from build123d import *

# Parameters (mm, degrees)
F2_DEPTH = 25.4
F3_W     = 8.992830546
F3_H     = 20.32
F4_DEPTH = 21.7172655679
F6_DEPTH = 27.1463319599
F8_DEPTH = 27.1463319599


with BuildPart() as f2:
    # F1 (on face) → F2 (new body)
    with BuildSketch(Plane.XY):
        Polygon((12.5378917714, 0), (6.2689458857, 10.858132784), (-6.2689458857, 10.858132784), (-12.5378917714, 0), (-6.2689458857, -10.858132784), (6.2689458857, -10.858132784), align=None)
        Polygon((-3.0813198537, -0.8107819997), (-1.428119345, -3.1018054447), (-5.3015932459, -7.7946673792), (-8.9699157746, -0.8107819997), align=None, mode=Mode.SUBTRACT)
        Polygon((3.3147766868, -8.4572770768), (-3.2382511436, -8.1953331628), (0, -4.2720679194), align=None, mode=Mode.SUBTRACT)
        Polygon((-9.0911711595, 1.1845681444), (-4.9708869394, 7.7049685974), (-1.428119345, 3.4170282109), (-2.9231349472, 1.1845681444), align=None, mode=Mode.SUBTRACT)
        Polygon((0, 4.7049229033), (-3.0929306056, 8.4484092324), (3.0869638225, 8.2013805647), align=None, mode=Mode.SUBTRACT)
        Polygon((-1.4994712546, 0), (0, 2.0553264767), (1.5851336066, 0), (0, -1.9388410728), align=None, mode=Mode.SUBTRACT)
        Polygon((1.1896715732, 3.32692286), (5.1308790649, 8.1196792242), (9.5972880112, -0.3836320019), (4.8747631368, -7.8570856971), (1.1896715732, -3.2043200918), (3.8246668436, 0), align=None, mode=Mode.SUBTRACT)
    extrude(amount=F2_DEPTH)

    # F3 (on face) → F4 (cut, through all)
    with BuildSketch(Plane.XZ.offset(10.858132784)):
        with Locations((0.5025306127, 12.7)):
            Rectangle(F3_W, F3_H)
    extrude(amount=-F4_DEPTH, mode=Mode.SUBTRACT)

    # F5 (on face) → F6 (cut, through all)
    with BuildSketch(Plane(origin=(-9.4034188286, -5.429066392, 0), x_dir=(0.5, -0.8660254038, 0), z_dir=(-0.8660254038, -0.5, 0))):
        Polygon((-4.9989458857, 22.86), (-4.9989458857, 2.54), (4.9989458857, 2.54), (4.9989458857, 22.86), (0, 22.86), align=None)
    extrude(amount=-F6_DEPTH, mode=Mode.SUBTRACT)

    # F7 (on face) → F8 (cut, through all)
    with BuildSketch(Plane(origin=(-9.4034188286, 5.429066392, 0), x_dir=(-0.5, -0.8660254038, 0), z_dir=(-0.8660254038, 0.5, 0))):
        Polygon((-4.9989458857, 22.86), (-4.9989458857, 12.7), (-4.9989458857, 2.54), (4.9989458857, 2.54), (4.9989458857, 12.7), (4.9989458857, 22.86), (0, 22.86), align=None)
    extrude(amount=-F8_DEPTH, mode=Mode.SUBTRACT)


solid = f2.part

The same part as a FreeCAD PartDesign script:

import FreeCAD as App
import Part
import Sketcher
from FreeCAD import Vector
Q = App.Units.Quantity

doc = App.newDocument("Part")
body = doc.addObject("PartDesign::Body", "Body")

sketch1 = body.newObject("Sketcher::SketchObject", "Sketch")
sketch1.AttachmentSupport = (doc.getObject("XY_Plane"), [""])
sketch1.MapMode = "FlatFace"
sketch1.addGeometry(Part.LineSegment(Vector(12.5, 0, 0), Vector(6.3, 10.9, 0)), False)
sketch1.addGeometry(Part.LineSegment(Vector(6.3, 10.9, 0), Vector(-6.3, 10.9, 0)), False)
sketch1.addGeometry(Part.LineSegment(Vector(-6.3, 10.9, 0), Vector(-12.5, 0, 0)), False)
sketch1.addGeometry(Part.LineSegment(Vector(-12.5, 0, 0), Vector(-6.3, -10.9, 0)), False)
sketch1.addGeometry(Part.LineSegment(Vector(-6.3, -10.9, 0), Vector(6.3, -10.9, 0)), False)
sketch1.addGeometry(Part.LineSegment(Vector(6.3, -10.9, 0), Vector(12.5, 0, 0)), False)
sketch1.addGeometry(Part.LineSegment(Vector(-9, -0.8, 0), Vector(-3.1, -0.8, 0)), False)
sketch1.addGeometry(Part.LineSegment(Vector(-3.1, -0.8, 0), Vector(-1.4, -3.1, 0)), False)
sketch1.addGeometry(Part.LineSegment(Vector(-1.4, -3.1, 0), Vector(-5.3, -7.8, 0)), False)
sketch1.addGeometry(Part.LineSegment(Vector(-5.3, -7.8, 0), Vector(-9, -0.8, 0)), False)
sketch1.addGeometry(Part.LineSegment(Vector(0, -4.3, 0), Vector(3.3, -8.5, 0)), False)
sketch1.addGeometry(Part.LineSegment(Vector(3.3, -8.5, 0), Vector(-3.2, -8.2, 0)), False)
sketch1.addGeometry(Part.LineSegment(Vector(-3.2, -8.2, 0), Vector(0, -4.3, 0)), False)
sketch1.addGeometry(Part.LineSegment(Vector(0, -1.9, 0), Vector(-1.5, 0, 0)), False)
sketch1.addGeometry(Part.LineSegment(Vector(-1.5, 0, 0), Vector(0, 2.1, 0)), False)
sketch1.addGeometry(Part.LineSegment(Vector(0, 2.1, 0), Vector(1.6, 0, 0)), False)
sketch1.addGeometry(Part.LineSegment(Vector(1.6, 0, 0), Vector(0, -1.9, 0)), False)
sketch1.addGeometry(Part.LineSegment(Vector(-2.9, 1.2, 0), Vector(-9.1, 1.2, 0)), False)
sketch1.addGeometry(Part.LineSegment(Vector(-9.1, 1.2, 0), Vector(-5, 7.7, 0)), False)
sketch1.addGeometry(Part.LineSegment(Vector(-5, 7.7, 0), Vector(-1.4, 3.4, 0)), False)
sketch1.addGeometry(Part.LineSegment(Vector(-1.4, 3.4, 0), Vector(-2.9, 1.2, 0)), False)
sketch1.addGeometry(Part.LineSegment(Vector(3.1, 8.2, 0), Vector(0, 4.7, 0)), False)
sketch1.addGeometry(Part.LineSegment(Vector(0, 4.7, 0), Vector(-3.1, 8.4, 0)), False)
sketch1.addGeometry(Part.LineSegment(Vector(-3.1, 8.4, 0), Vector(3.1, 8.2, 0)), False)
sketch1.addGeometry(Part.LineSegment(Vector(3.8, 0, 0), Vector(1.2, 3.3, 0)), False)
sketch1.addGeometry(Part.LineSegment(Vector(1.2, 3.3, 0), Vector(5.1, 8.1, 0)), False)
sketch1.addGeometry(Part.LineSegment(Vector(5.1, 8.1, 0), Vector(9.6, -0.4, 0)), False)
sketch1.addGeometry(Part.LineSegment(Vector(9.6, -0.4, 0), Vector(4.9, -7.9, 0)), False)
sketch1.addGeometry(Part.LineSegment(Vector(4.9, -7.9, 0), Vector(1.2, -3.2, 0)), False)
sketch1.addGeometry(Part.LineSegment(Vector(1.2, -3.2, 0), Vector(3.8, 0, 0)), False)
sketch1.addConstraint(Sketcher.Constraint("Coincident", 0, 2, 1, 1))
sketch1.addConstraint(Sketcher.Constraint("Coincident", 1, 2, 2, 1))
sketch1.addConstraint(Sketcher.Constraint("Coincident", 2, 2, 3, 1))
sketch1.addConstraint(Sketcher.Constraint("Coincident", 3, 2, 4, 1))
sketch1.addConstraint(Sketcher.Constraint("Coincident", 4, 2, 5, 1))
sketch1.addConstraint(Sketcher.Constraint("Coincident", 5, 2, 0, 1))
sketch1.addConstraint(Sketcher.Constraint("Coincident", 6, 2, 7, 1))
sketch1.addConstraint(Sketcher.Constraint("Coincident", 7, 2, 8, 1))
sketch1.addConstraint(Sketcher.Constraint("Coincident", 8, 2, 9, 1))
sketch1.addConstraint(Sketcher.Constraint("Coincident", 9, 2, 6, 1))
sketch1.addConstraint(Sketcher.Constraint("Coincident", 10, 2, 11, 1))
sketch1.addConstraint(Sketcher.Constraint("Coincident", 11, 2, 12, 1))
sketch1.addConstraint(Sketcher.Constraint("Coincident", 12, 2, 10, 1))
sketch1.addConstraint(Sketcher.Constraint("Coincident", 13, 2, 14, 1))
sketch1.addConstraint(Sketcher.Constraint("Coincident", 14, 2, 15, 1))
sketch1.addConstraint(Sketcher.Constraint("Coincident", 15, 2, 16, 1))
sketch1.addConstraint(Sketcher.Constraint("Coincident", 16, 2, 13, 1))
sketch1.addConstraint(Sketcher.Constraint("Coincident", 17, 2, 18, 1))
sketch1.addConstraint(Sketcher.Constraint("Coincident", 18, 2, 19, 1))
sketch1.addConstraint(Sketcher.Constraint("Coincident", 19, 2, 20, 1))
sketch1.addConstraint(Sketcher.Constraint("Coincident", 20, 2, 17, 1))
sketch1.addConstraint(Sketcher.Constraint("Coincident", 21, 2, 22, 1))
sketch1.addConstraint(Sketcher.Constraint("Coincident", 22, 2, 23, 1))
sketch1.addConstraint(Sketcher.Constraint("Coincident", 23, 2, 21, 1))
sketch1.addConstraint(Sketcher.Constraint("Coincident", 24, 2, 25, 1))
sketch1.addConstraint(Sketcher.Constraint("Coincident", 25, 2, 26, 1))
sketch1.addConstraint(Sketcher.Constraint("Coincident", 26, 2, 27, 1))
sketch1.addConstraint(Sketcher.Constraint("Coincident", 27, 2, 28, 1))
sketch1.addConstraint(Sketcher.Constraint("Coincident", 28, 2, 29, 1))
sketch1.addConstraint(Sketcher.Constraint("Coincident", 29, 2, 24, 1))
sketch1.addConstraint(Sketcher.Constraint("Horizontal", 1))
sketch1.addConstraint(Sketcher.Constraint("Horizontal", 4))
sketch1.addConstraint(Sketcher.Constraint("Horizontal", 6))
sketch1.addConstraint(Sketcher.Constraint("Horizontal", 17))
sketch1.addConstraint(Sketcher.Constraint("Symmetric", 0, 2, 3, 2, -1, 1))
sketch1.addConstraint(Sketcher.Constraint("Symmetric", 2, 2, 5, 2, -1, 1))
sketch1.addConstraint(Sketcher.Constraint("PointOnObject", 2, 2, -1))
sketch1.addConstraint(Sketcher.Constraint("PointOnObject", 12, 2, -2))
sketch1.addConstraint(Sketcher.Constraint("PointOnObject", 13, 2, -1))
sketch1.addConstraint(Sketcher.Constraint("PointOnObject", 14, 2, -2))
sketch1.addConstraint(Sketcher.Constraint("PointOnObject", 15, 2, -1))
sketch1.addConstraint(Sketcher.Constraint("PointOnObject", 16, 2, -2))
sketch1.addConstraint(Sketcher.Constraint("PointOnObject", 21, 2, -2))
sketch1.addConstraint(Sketcher.Constraint("PointOnObject", 29, 2, -1))
sketch1.addConstraint(Sketcher.Constraint("Parallel", 2, 5))
sketch1.addConstraint(Sketcher.Constraint("Parallel", 8, 12))
sketch1.addConstraint(Sketcher.Constraint("Parallel", 19, 22))
sketch1.addConstraint(Sketcher.Constraint("Parallel", 11, 23))
sketch1.addConstraint(Sketcher.Constraint("Parallel", 10, 24))
sketch1.addConstraint(Sketcher.Constraint("Parallel", 9, 26))
sketch1.addConstraint(Sketcher.Constraint("Parallel", 18, 27))
sketch1.addConstraint(Sketcher.Constraint("Parallel", 24, 28))
sketch1.addConstraint(Sketcher.Constraint("Parallel", 25, 29))
sketch1.addConstraint(Sketcher.Constraint("Vertical", 1, 2, 3, 2))
sketch1.addConstraint(Sketcher.Constraint("Vertical", 7, 2, 19, 2))
sketch1.addConstraint(Sketcher.Constraint("Vertical", 24, 2, 28, 2))
sketch1.addConstraint(Sketcher.Constraint("Angle", 0, Q("120 deg")))
sketch1.addConstraint(Sketcher.Constraint("Angle", 10, Q("-51.62001 deg")))
sketch1.addConstraint(Sketcher.Constraint("Distance", 29, 4.148598))
sketch1.addConstraint(Sketcher.Constraint("DistanceX", 1, 2, 1, 1, 12.537892))
sketch1.addConstraint(Sketcher.Constraint("DistanceX", 6, 2, 7, 2, 1.653201))
sketch1.addConstraint(Sketcher.Constraint("DistanceX", 2, 2, 8, 2, 7.236299))
sketch1.addConstraint(Sketcher.Constraint("DistanceY", 3, 2, 11, 2, 2.6628))
sketch1.addConstraint(Sketcher.Constraint("DistanceY", 8, 2, 12, 2, 3.522599))
sketch1.addConstraint(Sketcher.Constraint("DistanceX", 17, 2, 13, 2, 7.5917))
sketch1.addConstraint(Sketcher.Constraint("DistanceY", 17, 2, 18, 2, 6.5204))
sketch1.addConstraint(Sketcher.Constraint("DistanceY", 14, 2, 19, 2, 1.361702))
sketch1.addConstraint(Sketcher.Constraint("DistanceY", 24, 2, 21, 2, 1.378))
sketch1.addConstraint(Sketcher.Constraint("DistanceY", 25, 2, 23, 2, 0.081701))
sketch1.addConstraint(Sketcher.Constraint("Distance", 0, 12.537892))
sketch1.addConstraint(Sketcher.Constraint("Distance", 7, 2.825219))
sketch1.addConstraint(Sketcher.Constraint("Distance", 8, 6.084961))
sketch1.addConstraint(Sketcher.Constraint("Distance", 9, 7.888678))
sketch1.addConstraint(Sketcher.Constraint("Distance", 11, 6.558261))
sketch1.addConstraint(Sketcher.Constraint("Distance", 12, 5.08707))
sketch1.addConstraint(Sketcher.Constraint("Distance", 18, 7.713129))
sketch1.addConstraint(Sketcher.Constraint("Distance", 19, 5.562161))
sketch1.addConstraint(Sketcher.Constraint("Distance", 20, 2.68681))
sketch1.addConstraint(Sketcher.Constraint("Distance", 21, 4.664179))
sketch1.addConstraint(Sketcher.Constraint("Distance", 23, 6.18483))
sketch1.addConstraint(Sketcher.Constraint("Distance", 24, 4.244009))
sketch1.addConstraint(Sketcher.Constraint("Distance", 25, 6.205129))
sketch1.addConstraint(Sketcher.Constraint("Distance", 28, 5.935329))
sketch1.addConstraint(Sketcher.Constraint("DistanceX", 6, 1, 6, 2, 5.888596))
sketch1.addConstraint(Sketcher.Constraint("DistanceY", 16, 2, -1, 1, 1.938841))
sketch1.addConstraint(Sketcher.Constraint("DistanceY", -1, 1, 17, 2, 1.184568))
sketch1.addConstraint(Sketcher.Constraint("DistanceX", -1, 1, 24, 2, 1.189672))
sketch1.addConstraint(Sketcher.Constraint("Distance", 15, 2.595576))
pad1 = body.newObject("PartDesign::Pad", "Pad")
pad1.Profile = sketch1
pad1.Length = Q("1 in")

sketch2 = body.newObject("Sketcher::SketchObject", "Sketch001")
sketch2.AttachmentSupport = (doc.getObject("XZ_Plane"), [""])
sketch2.MapMode = "FlatFace"
sketch2.AttachmentOffset = App.Placement(Vector(0, 0, 10.858133), App.Rotation())
sketch2.addGeometry(Part.LineSegment(Vector(-4, 23, 0), Vector(-4, 3, 0)), False)
sketch2.addGeometry(Part.LineSegment(Vector(-4, 3, 0), Vector(5, 3, 0)), False)
sketch2.addGeometry(Part.LineSegment(Vector(5, 3, 0), Vector(5, 23, 0)), False)
sketch2.addGeometry(Part.LineSegment(Vector(5, 23, 0), Vector(-4, 23, 0)), False)
sketch2.addConstraint(Sketcher.Constraint("Coincident", 0, 2, 1, 1))
sketch2.addConstraint(Sketcher.Constraint("Coincident", 1, 2, 2, 1))
sketch2.addConstraint(Sketcher.Constraint("Coincident", 2, 2, 3, 1))
sketch2.addConstraint(Sketcher.Constraint("Coincident", 3, 2, 0, 1))
sketch2.addConstraint(Sketcher.Constraint("Vertical", 0))
sketch2.addConstraint(Sketcher.Constraint("Horizontal", 1))
sketch2.addConstraint(Sketcher.Constraint("Vertical", 2))
sketch2.addConstraint(Sketcher.Constraint("Horizontal", 3))
sketch2.addConstraint(Sketcher.Constraint("DistanceY", 0, 2, 0, 1, Q("0.8 in")))
sketch2.addConstraint(Sketcher.Constraint("DistanceY", -1, 1, 0, 2, Q("0.1 in")))
sketch2.addConstraint(Sketcher.Constraint("DistanceX", 1, 1, 1, 2, 8.992831))
sketch2.addConstraint(Sketcher.Constraint("DistanceX", 0, 2, -1, 1, 3.993885))
pocket1 = body.newObject("PartDesign::Pocket", "Pocket")
pocket1.Profile = sketch2
pocket1.Type = "ThroughAll"

sketch3 = body.newObject("Sketcher::SketchObject", "Sketch002")
sketch3.Placement = App.Placement(Vector(-9.403419, -5.429066, 0), App.Rotation(Vector(0.5, -0.866025404, 0), Vector(0, 0, 1), Vector(-0.866025404, -0.5, 0), "ZXY"))
sketch3.addGeometry(Part.LineSegment(Vector(-5, 23, 0), Vector(-5, 3, 0)), False)
sketch3.addGeometry(Part.LineSegment(Vector(-5, 3, 0), Vector(5, 3, 0)), False)
sketch3.addGeometry(Part.LineSegment(Vector(5, 3, 0), Vector(5, 23, 0)), False)
sketch3.addGeometry(Part.LineSegment(Vector(5, 23, 0), Vector(-5, 23, 0)), False)
sketch3.addConstraint(Sketcher.Constraint("Coincident", 0, 2, 1, 1))
sketch3.addConstraint(Sketcher.Constraint("Coincident", 1, 2, 2, 1))
sketch3.addConstraint(Sketcher.Constraint("Coincident", 2, 2, 3, 1))
sketch3.addConstraint(Sketcher.Constraint("Coincident", 3, 2, 0, 1))
sketch3.addConstraint(Sketcher.Constraint("Vertical", 0))
sketch3.addConstraint(Sketcher.Constraint("Horizontal", 1))
sketch3.addConstraint(Sketcher.Constraint("Vertical", 2))
sketch3.addConstraint(Sketcher.Constraint("Horizontal", 3))
sketch3.addConstraint(Sketcher.Constraint("DistanceY", 0, 2, 0, 1, Q("0.8 in")))
sketch3.addConstraint(Sketcher.Constraint("DistanceY", -1, 1, 0, 2, Q("0.1 in")))
sketch3.addConstraint(Sketcher.Constraint("DistanceX", 1, 1, 1, 2, 9.997892))
sketch3.addConstraint(Sketcher.Constraint("DistanceX", 0, 2, -1, 1, 4.998946))
pocket2 = body.newObject("PartDesign::Pocket", "Pocket001")
pocket2.Profile = sketch3
pocket2.Type = "ThroughAll"

sketch4 = body.newObject("Sketcher::SketchObject", "Sketch003")
sketch4.Placement = App.Placement(Vector(-9.403419, 5.429066, 0), App.Rotation(Vector(-0.5, -0.866025404, 0), Vector(0, 0, 1), Vector(-0.866025404, 0.5, 0), "ZXY"))
sketch4.addGeometry(Part.LineSegment(Vector(-5, 23, 0), Vector(-5, 3, 0)), False)
sketch4.addGeometry(Part.LineSegment(Vector(-5, 3, 0), Vector(5, 3, 0)), False)
sketch4.addGeometry(Part.LineSegment(Vector(5, 3, 0), Vector(5, 23, 0)), False)
sketch4.addGeometry(Part.LineSegment(Vector(5, 23, 0), Vector(-5, 23, 0)), False)
sketch4.addConstraint(Sketcher.Constraint("Coincident", 0, 2, 1, 1))
sketch4.addConstraint(Sketcher.Constraint("Coincident", 1, 2, 2, 1))
sketch4.addConstraint(Sketcher.Constraint("Coincident", 2, 2, 3, 1))
sketch4.addConstraint(Sketcher.Constraint("Coincident", 3, 2, 0, 1))
sketch4.addConstraint(Sketcher.Constraint("Vertical", 0))
sketch4.addConstraint(Sketcher.Constraint("Horizontal", 1))
sketch4.addConstraint(Sketcher.Constraint("Vertical", 2))
sketch4.addConstraint(Sketcher.Constraint("Horizontal", 3))
sketch4.addConstraint(Sketcher.Constraint("DistanceY", 0, 2, 0, 1, Q("0.8 in")))
sketch4.addConstraint(Sketcher.Constraint("DistanceY", -1, 1, 0, 2, Q("0.1 in")))
sketch4.addConstraint(Sketcher.Constraint("DistanceX", 1, 1, 1, 2, 9.997892))
sketch4.addConstraint(Sketcher.Constraint("DistanceX", 0, 2, -1, 1, 4.998946))
pocket3 = body.newObject("PartDesign::Pocket", "Pocket002")
pocket3.Profile = sketch4
pocket3.Type = "ThroughAll"

doc.recompute()
